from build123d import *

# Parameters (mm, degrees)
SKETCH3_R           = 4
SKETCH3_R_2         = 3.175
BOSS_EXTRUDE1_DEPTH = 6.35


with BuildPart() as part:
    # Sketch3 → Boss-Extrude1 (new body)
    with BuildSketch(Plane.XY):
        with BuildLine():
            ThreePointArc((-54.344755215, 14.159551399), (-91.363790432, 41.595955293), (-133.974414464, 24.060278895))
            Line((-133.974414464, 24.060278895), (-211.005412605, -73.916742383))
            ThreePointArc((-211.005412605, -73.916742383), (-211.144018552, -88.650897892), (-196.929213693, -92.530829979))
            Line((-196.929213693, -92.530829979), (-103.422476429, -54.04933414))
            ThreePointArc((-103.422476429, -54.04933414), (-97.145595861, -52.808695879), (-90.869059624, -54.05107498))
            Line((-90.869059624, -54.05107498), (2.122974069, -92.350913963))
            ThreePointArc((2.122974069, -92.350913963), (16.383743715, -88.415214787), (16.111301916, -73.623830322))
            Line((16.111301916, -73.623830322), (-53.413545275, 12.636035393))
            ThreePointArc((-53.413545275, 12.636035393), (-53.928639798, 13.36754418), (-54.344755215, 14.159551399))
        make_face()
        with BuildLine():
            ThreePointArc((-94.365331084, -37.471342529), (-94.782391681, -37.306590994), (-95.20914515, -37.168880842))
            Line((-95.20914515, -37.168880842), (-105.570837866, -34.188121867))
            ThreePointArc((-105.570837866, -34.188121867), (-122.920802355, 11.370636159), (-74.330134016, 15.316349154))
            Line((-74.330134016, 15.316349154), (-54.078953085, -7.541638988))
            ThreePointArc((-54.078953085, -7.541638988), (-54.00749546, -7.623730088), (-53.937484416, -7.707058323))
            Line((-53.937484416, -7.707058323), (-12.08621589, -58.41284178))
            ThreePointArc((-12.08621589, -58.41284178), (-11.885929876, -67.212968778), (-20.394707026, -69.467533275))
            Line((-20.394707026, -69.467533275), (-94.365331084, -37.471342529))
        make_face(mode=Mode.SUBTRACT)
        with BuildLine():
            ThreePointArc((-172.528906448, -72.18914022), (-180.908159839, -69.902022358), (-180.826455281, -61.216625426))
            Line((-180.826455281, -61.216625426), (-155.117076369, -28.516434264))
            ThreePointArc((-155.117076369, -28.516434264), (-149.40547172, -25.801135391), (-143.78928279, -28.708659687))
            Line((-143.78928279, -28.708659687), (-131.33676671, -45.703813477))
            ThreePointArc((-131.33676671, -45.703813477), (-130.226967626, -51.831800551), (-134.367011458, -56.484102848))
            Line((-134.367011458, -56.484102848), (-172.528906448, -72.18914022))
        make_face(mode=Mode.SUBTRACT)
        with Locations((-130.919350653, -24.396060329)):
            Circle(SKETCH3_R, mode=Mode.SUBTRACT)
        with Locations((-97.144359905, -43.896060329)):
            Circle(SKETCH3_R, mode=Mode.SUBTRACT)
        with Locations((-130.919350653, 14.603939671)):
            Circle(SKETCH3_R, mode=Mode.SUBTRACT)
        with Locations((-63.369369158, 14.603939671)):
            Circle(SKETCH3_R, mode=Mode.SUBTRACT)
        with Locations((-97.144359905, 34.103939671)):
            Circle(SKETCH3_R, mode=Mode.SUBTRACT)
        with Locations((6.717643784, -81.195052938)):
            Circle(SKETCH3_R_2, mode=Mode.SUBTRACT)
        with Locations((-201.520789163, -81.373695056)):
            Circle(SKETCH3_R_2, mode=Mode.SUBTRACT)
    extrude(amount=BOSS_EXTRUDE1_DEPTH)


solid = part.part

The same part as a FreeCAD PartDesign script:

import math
import FreeCAD as App
import Part
import Sketcher

doc = App.newDocument("Part")
body = doc.addObject("PartDesign::Body", "Body")

sketch1 = body.newObject("Sketcher::SketchObject", "Sketch")
sketch1.AttachmentSupport = (doc.getObject("XY_Plane"), [""])
sketch1.MapMode = "FlatFace"
sketch1.addGeometry([
    Part.ArcOfCircle(Part.Circle(App.Vector(-97.14, -4.9, 0), App.Vector(0, 0, 1), 46.85), math.radians(24), math.radians(142)),
    Part.LineSegment(App.Vector(-133.97, 24.06, 0), App.Vector(-211.01, -73.92, 0)),
    Part.ArcOfCircle(Part.Circle(App.Vector(-201.52, -81.37, 0), App.Vector(0, 0, 1), 12.06), math.radians(142), math.radians(292)),
    Part.LineSegment(App.Vector(-196.93, -92.53, 0), App.Vector(-103.42, -54.05, 0)),
    Part.ArcOfCircle(Part.Circle(App.Vector(-97.15, -69.3, 0), App.Vector(0, 0, 1), 16.49), math.radians(68), math.radians(112)),
    Part.LineSegment(App.Vector(-90.87, -54.05, 0), App.Vector(2.12, -92.35, 0)),
    Part.ArcOfCircle(Part.Circle(App.Vector(6.72, -81.2, 0), App.Vector(0, 0, 1), 12.06), math.radians(-112), math.radians(39)),
    Part.LineSegment(App.Vector(16.11, -73.62, 0), App.Vector(-53.41, 12.64, 0)),
    Part.ArcOfCircle(Part.Circle(App.Vector(-48.04, 16.97, 0), App.Vector(0, 0, 1), 6.9), math.radians(-156), math.radians(-141.13)),
    Part.Circle(App.Vector(-201.52, -81.37, 0), App.Vector(0, 0, 1), 3.17),
    Part.LineSegment(App.Vector(-134.37, -56.48, 0), App.Vector(-172.53, -72.19, 0)),
    Part.ArcOfCircle(Part.Circle(App.Vector(-175.24, -65.61, 0), App.Vector(0, 0, 1), 7.11), math.radians(142), math.radians(292)),
    Part.LineSegment(App.Vector(-180.83, -61.22, 0), App.Vector(-155.12, -28.52, 0)),
    Part.ArcOfCircle(Part.Circle(App.Vector(-149.53, -32.91, 0), App.Vector(0, 0, 1), 7.11), math.radians(36), math.radians(142)),
    Part.LineSegment(App.Vector(-143.79, -28.71, 0), App.Vector(-131.34, -45.7, 0)),
    Part.ArcOfCircle(Part.Circle(App.Vector(-137.07, -49.91, 0), App.Vector(0, 0, 1), 7.11), math.radians(-68), math.radians(36)),
    Part.Circle(App.Vector(-130.92, -24.4, 0), App.Vector(0, 0, 1), 4),
    Part.Circle(App.Vector(6.72, -81.2, 0), App.Vector(0, 0, 1), 3.17),
    Part.Circle(App.Vector(-97.14, -43.9, 0), App.Vector(0, 0, 1), 4),
    Part.Circle(App.Vector(-130.92, 14.6, 0), App.Vector(0, 0, 1), 4),
    Part.LineSegment(App.Vector(-20.39, -69.47, 0), App.Vector(-94.37, -37.47, 0)),
    Part.ArcOfCircle(Part.Circle(App.Vector(-97.14, -43.9, 0), App.Vector(0, 0, 1), 7), math.radians(66.61), math.radians(73.95)),
    Part.LineSegment(App.Vector(-95.21, -37.17, 0), App.Vector(-105.57, -34.19, 0)),
    Part.ArcOfCircle(Part.Circle(App.Vector(-97.14, -4.9, 0), App.Vector(0, 0, 1), 30.48), math.radians(42), math.radians(254)),
    Part.LineSegment(App.Vector(-74.33, 15.32, 0), App.Vector(-54.08, -7.54, 0)),
    Part.ArcOfCircle(Part.Circle(App.Vector(-58.74, -11.67, 0), App.Vector(0, 0, 1), 6.22), math.radians(39.54), math.radians(41.54)),
    Part.LineSegment(App.Vector(-53.94, -7.71, 0), App.Vector(-12.09, -58.41, 0)),
    Part.ArcOfCircle(Part.Circle(App.Vector(-17.57, -62.94, 0), App.Vector(0, 0, 1), 7.11), math.radians(-113), math.radians(40)),
    Part.Circle(App.Vector(-63.37, 14.6, 0), App.Vector(0, 0, 1), 4),
    Part.Circle(App.Vector(-97.14, 34.1, 0), App.Vector(0, 0, 1), 4),
], False)
sketch1.addConstraint([
    Sketcher.Constraint("Tangent", 0, 2, 1, 1),
    Sketcher.Constraint("Tangent", 1, 2, 2, 1),
    Sketcher.Constraint("Tangent", 2, 2, 3, 1),
    Sketcher.Constraint("Tangent", 3, 2, 4, 2),
    Sketcher.Constraint("Tangent", 4, 1, 5, 1),
    Sketcher.Constraint("Tangent", 5, 2, 6, 1),
    Sketcher.Constraint("Tangent", 6, 2, 7, 1),
    Sketcher.Constraint("Tangent", 7, 2, 8, 2),
    Sketcher.Constraint("Tangent", 8, 1, 0, 1),
    Sketcher.Constraint("Tangent", 10, 2, 11, 2),
    Sketcher.Constraint("Tangent", 11, 1, 12, 1),
    Sketcher.Constraint("Tangent", 12, 2, 13, 2),
    Sketcher.Constraint("Tangent", 13, 1, 14, 1),
    Sketcher.Constraint("Tangent", 14, 2, 15, 2),
    Sketcher.Constraint("Tangent", 15, 1, 10, 1),
    Sketcher.Constraint("Tangent", 20, 2, 21, 1),
    Sketcher.Constraint("Tangent", 21, 2, 22, 1),
    Sketcher.Constraint("Tangent", 22, 2, 23, 2),
    Sketcher.Constraint("Tangent", 23, 1, 24, 1),
    Sketcher.Constraint("Tangent", 24, 2, 25, 2),
    Sketcher.Constraint("Tangent", 25, 1, 26, 1),
    Sketcher.Constraint("Tangent", 26, 2, 27, 2),
    Sketcher.Constraint("Tangent", 27, 1, 20, 1),
    Sketcher.Constraint("Coincident", 9, 3, 2, 3),
    Sketcher.Constraint("Coincident", 17, 3, 6, 3),
    Sketcher.Constraint("Coincident", 21, 3, 18, 3),
    Sketcher.Constraint("Coincident", 23, 3, 0, 3),
    Sketcher.Constraint("Equal", 2, 6),
    Sketcher.Constraint("Equal", 11, 13),
    Sketcher.Constraint("Equal", 13, 15),
    Sketcher.Constraint("Equal", 9, 17),
    Sketcher.Constraint("Equal", 16, 18),
    Sketcher.Constraint("Equal", 18, 19),
    Sketcher.Constraint("Equal", 15, 27),
    Sketcher.Constraint("Equal", 19, 28),
    Sketcher.Constraint("Equal", 28, 29),
    Sketcher.Constraint("Parallel", 3, 10),
    Sketcher.Constraint("Parallel", 1, 12),
    Sketcher.Constraint("Horizontal", 19, 3, 28, 3),
    Sketcher.Constraint("Vertical", 0, 3, 18, 3),
    Sketcher.Constraint("Vertical", 16, 3, 19, 3),
    Sketcher.Constraint("Vertical", 23, 3, 29, 3),
    Sketcher.Constraint("Diameter", 16, 8.0),
    Sketcher.Constraint("Radius", 21, 7.0),
    Sketcher.Constraint("Radius", 8, 6.9),
    Sketcher.Constraint("Diameter", 9, 6.35),
    Sketcher.Constraint("Radius", 0, 46.85),
    Sketcher.Constraint("Radius", 23, 30.48),
    Sketcher.Constraint("Radius", 2, 12.065),
    Sketcher.Constraint("Radius", 11, 7.112),
    Sketcher.Constraint("DistanceY", 18, 3, 0, 3, 39.0),
    Sketcher.Constraint("DistanceY", 16, 3, 19, 3, 39.0),
    Sketcher.Constraint("DistanceY", 0, 3, 29, 3, 39.0),
    Sketcher.Constraint("DistanceY", 4, 3, 0, 3, 64.4),
    Sketcher.Constraint("DistanceY", 16, 3, 0, 3, 19.5),
    Sketcher.Constraint("DistanceY", 7, 2, 8, 3, 4.329999),
    Sketcher.Constraint("Radius", 4, 16.487365),
    Sketcher.Constraint("Radius", 25, 6.223004),
    Sketcher.Constraint("Distance", 7, 110.790202),
    Sketcher.Constraint("DistanceX", -1, 1, 6, 2, 16.111302),
    Sketcher.Constraint("DistanceX", 23, 3, 25, 3, 38.407499),
    Sketcher.Constraint("DistanceX", 1, 2, 2, 2, 14.076199),
    Sketcher.Constraint("DistanceX", 18, 3, 4, 1, 6.2753),
    Sketcher.Constraint("DistanceY", 13, 1, 16, 3, 4.312599),
    Sketcher.Constraint("DistanceY", 14, 2, 13, 3, 12.791702),
    Sketcher.Constraint("Distance", 10, 41.267159),
    Sketcher.Constraint("Distance", 12, 41.59657),
    Sketcher.Constraint("Distance", 26, 65.746522),
    Sketcher.Constraint("DistanceX", 0, 3, -1, 1, 97.14436),
    Sketcher.Constraint("DistanceY", 0, 3, -1, 1, 4.89606),
    Sketcher.Constraint("DistanceX", 11, 3, -1, 1, 175.235519),
    Sketcher.Constraint("DistanceX", 16, 3, -1, 1, 130.919351),
    Sketcher.Constraint("DistanceY", 27, 3, -1, 1, 62.94002),
    Sketcher.Constraint("DistanceX", 28, 3, -1, 1, 63.369369),
    Sketcher.Constraint("DistanceX", 20, 2, -1, 1, 94.365331),
])
pad1 = body.newObject("PartDesign::Pad", "Pad")
pad1.Profile = sketch1
pad1.Length = 6.35

doc.recompute()
